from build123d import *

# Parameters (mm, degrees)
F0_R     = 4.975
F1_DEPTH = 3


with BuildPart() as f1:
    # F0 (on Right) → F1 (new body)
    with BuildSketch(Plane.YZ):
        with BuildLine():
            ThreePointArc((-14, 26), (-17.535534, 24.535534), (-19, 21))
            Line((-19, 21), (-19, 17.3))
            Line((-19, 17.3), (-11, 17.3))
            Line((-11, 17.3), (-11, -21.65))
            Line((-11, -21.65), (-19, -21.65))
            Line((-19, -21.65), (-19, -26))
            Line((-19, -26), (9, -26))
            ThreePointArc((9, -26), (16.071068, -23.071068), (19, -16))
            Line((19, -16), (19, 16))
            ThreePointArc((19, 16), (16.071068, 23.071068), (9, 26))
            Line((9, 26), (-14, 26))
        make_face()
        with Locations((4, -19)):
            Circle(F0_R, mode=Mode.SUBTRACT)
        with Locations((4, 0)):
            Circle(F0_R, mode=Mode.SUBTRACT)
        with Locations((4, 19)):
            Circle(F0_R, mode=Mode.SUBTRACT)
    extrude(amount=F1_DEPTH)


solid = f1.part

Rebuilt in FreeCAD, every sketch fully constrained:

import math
import FreeCAD as App
import Part
import Sketcher

V = App.Vector
Q = App.Units.Quantity

doc = App.newDocument("Part")
body = doc.addObject("PartDesign::Body", "Body")

# Sketch on YZ plane
sketch1 = body.newObject("Sketcher::SketchObject", "Sketch")
sketch1.AttachmentSupport = (doc.getObject("YZ_Plane"), [""])
sketch1.MapMode = "FlatFace"
sketch1.addGeometry([
    Part.ArcOfCircle(Part.Circle(V(-14, 21, 0), V(0, 0, 1), 5), math.radians(90), math.radians(180)),  # 0
    Part.LineSegment(V(-19, 21, 0), V(-19, 17.3, 0)),  # 1
    Part.LineSegment(V(-19, 17.3, 0), V(-11, 17.3, 0)),  # 2
    Part.LineSegment(V(-11, 17.3, 0), V(-11, -21.6, 0)),  # 3
    Part.LineSegment(V(-11, -21.6, 0), V(-19, -21.6, 0)),  # 4
    Part.LineSegment(V(-19, -21.6, 0), V(-19, -26, 0)),  # 5
    Part.LineSegment(V(-19, -26, 0), V(9, -26, 0)),  # 6
    Part.ArcOfCircle(Part.Circle(V(9, -16, 0), V(0, 0, 1), 10), math.radians(-90), math.radians(0)),  # 7
    Part.LineSegment(V(19, -16, 0), V(19, 16, 0)),  # 8
    Part.ArcOfCircle(Part.Circle(V(9, 16, 0), V(0, 0, 1), 10), math.radians(0), math.radians(90)),  # 9
    Part.LineSegment(V(9, 26, 0), V(-14, 26, 0)),  # 10
    Part.Circle(V(4, -19, 0), V(0, 0, 1), 5),  # 11
    Part.Circle(V(4, 0, 0), V(0, 0, 1), 5),  # 12
    Part.Circle(V(4, 19, 0), V(0, 0, 1), 5),  # 13
], False)
sketch1.addConstraint([
    Sketcher.Constraint("Tangent", 0, 2, 1, 1),
    Sketcher.Constraint("Coincident", 1, 2, 2, 1),
    Sketcher.Constraint("Coincident", 2, 2, 3, 1),
    Sketcher.Constraint("Coincident", 3, 2, 4, 1),
    Sketcher.Constraint("Coincident", 4, 2, 5, 1),
    Sketcher.Constraint("Coincident", 5, 2, 6, 1),
    Sketcher.Constraint("Tangent", 6, 2, 7, 1),
    Sketcher.Constraint("Tangent", 7, 2, 8, 1),
    Sketcher.Constraint("Tangent", 8, 2, 9, 1),
    Sketcher.Constraint("Tangent", 9, 2, 10, 1),
    Sketcher.Constraint("Tangent", 10, 2, 0, 1),
    Sketcher.Constraint("Vertical", 1),
    Sketcher.Constraint("Horizontal", 2),
    Sketcher.Constraint("Vertical", 3),
    Sketcher.Constraint("Horizontal", 4),
    Sketcher.Constraint("Vertical", 5),
    Sketcher.Constraint("Horizontal", 6),
    Sketcher.Constraint("Vertical", 8),
    Sketcher.Constraint("Horizontal", 10),
    Sketcher.Constraint("Equal", 7, 9),
    Sketcher.Constraint("Equal", 11, 12),
    Sketcher.Constraint("Equal", 12, 13),
    Sketcher.Constraint("Symmetric", 11, 3, 13, 3, -1),
    Sketcher.Constraint("PointOnObject", 12, 3, -1),
    Sketcher.Constraint("Vertical", 11, 3, 12, 3),
    Sketcher.Constraint("Vertical", 1, 2, 4, 2),
    Sketcher.Constraint("Radius", 0, Q("5 mm")),
    Sketcher.Constraint("Radius", 7, Q("9.999999 mm")),
    Sketcher.Constraint("Diameter", 11, Q("9.95 mm")),
    Sketcher.Constraint("DistanceX", 2, 1, 2, 2, Q("8 mm")),
    Sketcher.Constraint("DistanceX", 6, 1, 6, 2, Q("28 mm")),
    Sketcher.Constraint("DistanceY", 8, 1, 8, 2, Q("32 mm")),
    Sketcher.Constraint("DistanceY", 1, 2, 1, 1, Q("3.7 mm")),
    Sketcher.Constraint("DistanceX", 0, 3, -1, 1, Q("14 mm")),
    Sketcher.Constraint("DistanceY", -1, 1, 0, 3, Q("21 mm")),
    Sketcher.Constraint("DistanceX", -1, 1, 11, 3, Q("4 mm")),
    Sketcher.Constraint("DistanceY", 11, 3, -1, 1, Q("19 mm")),
    Sketcher.Constraint("DistanceY", 3, 2, 3, 1, Q("38.95 mm")),
])
pad1 = body.newObject("PartDesign::Pad", "Pad")
pad1.Profile = sketch1
pad1.Length = 3

doc.recompute()
